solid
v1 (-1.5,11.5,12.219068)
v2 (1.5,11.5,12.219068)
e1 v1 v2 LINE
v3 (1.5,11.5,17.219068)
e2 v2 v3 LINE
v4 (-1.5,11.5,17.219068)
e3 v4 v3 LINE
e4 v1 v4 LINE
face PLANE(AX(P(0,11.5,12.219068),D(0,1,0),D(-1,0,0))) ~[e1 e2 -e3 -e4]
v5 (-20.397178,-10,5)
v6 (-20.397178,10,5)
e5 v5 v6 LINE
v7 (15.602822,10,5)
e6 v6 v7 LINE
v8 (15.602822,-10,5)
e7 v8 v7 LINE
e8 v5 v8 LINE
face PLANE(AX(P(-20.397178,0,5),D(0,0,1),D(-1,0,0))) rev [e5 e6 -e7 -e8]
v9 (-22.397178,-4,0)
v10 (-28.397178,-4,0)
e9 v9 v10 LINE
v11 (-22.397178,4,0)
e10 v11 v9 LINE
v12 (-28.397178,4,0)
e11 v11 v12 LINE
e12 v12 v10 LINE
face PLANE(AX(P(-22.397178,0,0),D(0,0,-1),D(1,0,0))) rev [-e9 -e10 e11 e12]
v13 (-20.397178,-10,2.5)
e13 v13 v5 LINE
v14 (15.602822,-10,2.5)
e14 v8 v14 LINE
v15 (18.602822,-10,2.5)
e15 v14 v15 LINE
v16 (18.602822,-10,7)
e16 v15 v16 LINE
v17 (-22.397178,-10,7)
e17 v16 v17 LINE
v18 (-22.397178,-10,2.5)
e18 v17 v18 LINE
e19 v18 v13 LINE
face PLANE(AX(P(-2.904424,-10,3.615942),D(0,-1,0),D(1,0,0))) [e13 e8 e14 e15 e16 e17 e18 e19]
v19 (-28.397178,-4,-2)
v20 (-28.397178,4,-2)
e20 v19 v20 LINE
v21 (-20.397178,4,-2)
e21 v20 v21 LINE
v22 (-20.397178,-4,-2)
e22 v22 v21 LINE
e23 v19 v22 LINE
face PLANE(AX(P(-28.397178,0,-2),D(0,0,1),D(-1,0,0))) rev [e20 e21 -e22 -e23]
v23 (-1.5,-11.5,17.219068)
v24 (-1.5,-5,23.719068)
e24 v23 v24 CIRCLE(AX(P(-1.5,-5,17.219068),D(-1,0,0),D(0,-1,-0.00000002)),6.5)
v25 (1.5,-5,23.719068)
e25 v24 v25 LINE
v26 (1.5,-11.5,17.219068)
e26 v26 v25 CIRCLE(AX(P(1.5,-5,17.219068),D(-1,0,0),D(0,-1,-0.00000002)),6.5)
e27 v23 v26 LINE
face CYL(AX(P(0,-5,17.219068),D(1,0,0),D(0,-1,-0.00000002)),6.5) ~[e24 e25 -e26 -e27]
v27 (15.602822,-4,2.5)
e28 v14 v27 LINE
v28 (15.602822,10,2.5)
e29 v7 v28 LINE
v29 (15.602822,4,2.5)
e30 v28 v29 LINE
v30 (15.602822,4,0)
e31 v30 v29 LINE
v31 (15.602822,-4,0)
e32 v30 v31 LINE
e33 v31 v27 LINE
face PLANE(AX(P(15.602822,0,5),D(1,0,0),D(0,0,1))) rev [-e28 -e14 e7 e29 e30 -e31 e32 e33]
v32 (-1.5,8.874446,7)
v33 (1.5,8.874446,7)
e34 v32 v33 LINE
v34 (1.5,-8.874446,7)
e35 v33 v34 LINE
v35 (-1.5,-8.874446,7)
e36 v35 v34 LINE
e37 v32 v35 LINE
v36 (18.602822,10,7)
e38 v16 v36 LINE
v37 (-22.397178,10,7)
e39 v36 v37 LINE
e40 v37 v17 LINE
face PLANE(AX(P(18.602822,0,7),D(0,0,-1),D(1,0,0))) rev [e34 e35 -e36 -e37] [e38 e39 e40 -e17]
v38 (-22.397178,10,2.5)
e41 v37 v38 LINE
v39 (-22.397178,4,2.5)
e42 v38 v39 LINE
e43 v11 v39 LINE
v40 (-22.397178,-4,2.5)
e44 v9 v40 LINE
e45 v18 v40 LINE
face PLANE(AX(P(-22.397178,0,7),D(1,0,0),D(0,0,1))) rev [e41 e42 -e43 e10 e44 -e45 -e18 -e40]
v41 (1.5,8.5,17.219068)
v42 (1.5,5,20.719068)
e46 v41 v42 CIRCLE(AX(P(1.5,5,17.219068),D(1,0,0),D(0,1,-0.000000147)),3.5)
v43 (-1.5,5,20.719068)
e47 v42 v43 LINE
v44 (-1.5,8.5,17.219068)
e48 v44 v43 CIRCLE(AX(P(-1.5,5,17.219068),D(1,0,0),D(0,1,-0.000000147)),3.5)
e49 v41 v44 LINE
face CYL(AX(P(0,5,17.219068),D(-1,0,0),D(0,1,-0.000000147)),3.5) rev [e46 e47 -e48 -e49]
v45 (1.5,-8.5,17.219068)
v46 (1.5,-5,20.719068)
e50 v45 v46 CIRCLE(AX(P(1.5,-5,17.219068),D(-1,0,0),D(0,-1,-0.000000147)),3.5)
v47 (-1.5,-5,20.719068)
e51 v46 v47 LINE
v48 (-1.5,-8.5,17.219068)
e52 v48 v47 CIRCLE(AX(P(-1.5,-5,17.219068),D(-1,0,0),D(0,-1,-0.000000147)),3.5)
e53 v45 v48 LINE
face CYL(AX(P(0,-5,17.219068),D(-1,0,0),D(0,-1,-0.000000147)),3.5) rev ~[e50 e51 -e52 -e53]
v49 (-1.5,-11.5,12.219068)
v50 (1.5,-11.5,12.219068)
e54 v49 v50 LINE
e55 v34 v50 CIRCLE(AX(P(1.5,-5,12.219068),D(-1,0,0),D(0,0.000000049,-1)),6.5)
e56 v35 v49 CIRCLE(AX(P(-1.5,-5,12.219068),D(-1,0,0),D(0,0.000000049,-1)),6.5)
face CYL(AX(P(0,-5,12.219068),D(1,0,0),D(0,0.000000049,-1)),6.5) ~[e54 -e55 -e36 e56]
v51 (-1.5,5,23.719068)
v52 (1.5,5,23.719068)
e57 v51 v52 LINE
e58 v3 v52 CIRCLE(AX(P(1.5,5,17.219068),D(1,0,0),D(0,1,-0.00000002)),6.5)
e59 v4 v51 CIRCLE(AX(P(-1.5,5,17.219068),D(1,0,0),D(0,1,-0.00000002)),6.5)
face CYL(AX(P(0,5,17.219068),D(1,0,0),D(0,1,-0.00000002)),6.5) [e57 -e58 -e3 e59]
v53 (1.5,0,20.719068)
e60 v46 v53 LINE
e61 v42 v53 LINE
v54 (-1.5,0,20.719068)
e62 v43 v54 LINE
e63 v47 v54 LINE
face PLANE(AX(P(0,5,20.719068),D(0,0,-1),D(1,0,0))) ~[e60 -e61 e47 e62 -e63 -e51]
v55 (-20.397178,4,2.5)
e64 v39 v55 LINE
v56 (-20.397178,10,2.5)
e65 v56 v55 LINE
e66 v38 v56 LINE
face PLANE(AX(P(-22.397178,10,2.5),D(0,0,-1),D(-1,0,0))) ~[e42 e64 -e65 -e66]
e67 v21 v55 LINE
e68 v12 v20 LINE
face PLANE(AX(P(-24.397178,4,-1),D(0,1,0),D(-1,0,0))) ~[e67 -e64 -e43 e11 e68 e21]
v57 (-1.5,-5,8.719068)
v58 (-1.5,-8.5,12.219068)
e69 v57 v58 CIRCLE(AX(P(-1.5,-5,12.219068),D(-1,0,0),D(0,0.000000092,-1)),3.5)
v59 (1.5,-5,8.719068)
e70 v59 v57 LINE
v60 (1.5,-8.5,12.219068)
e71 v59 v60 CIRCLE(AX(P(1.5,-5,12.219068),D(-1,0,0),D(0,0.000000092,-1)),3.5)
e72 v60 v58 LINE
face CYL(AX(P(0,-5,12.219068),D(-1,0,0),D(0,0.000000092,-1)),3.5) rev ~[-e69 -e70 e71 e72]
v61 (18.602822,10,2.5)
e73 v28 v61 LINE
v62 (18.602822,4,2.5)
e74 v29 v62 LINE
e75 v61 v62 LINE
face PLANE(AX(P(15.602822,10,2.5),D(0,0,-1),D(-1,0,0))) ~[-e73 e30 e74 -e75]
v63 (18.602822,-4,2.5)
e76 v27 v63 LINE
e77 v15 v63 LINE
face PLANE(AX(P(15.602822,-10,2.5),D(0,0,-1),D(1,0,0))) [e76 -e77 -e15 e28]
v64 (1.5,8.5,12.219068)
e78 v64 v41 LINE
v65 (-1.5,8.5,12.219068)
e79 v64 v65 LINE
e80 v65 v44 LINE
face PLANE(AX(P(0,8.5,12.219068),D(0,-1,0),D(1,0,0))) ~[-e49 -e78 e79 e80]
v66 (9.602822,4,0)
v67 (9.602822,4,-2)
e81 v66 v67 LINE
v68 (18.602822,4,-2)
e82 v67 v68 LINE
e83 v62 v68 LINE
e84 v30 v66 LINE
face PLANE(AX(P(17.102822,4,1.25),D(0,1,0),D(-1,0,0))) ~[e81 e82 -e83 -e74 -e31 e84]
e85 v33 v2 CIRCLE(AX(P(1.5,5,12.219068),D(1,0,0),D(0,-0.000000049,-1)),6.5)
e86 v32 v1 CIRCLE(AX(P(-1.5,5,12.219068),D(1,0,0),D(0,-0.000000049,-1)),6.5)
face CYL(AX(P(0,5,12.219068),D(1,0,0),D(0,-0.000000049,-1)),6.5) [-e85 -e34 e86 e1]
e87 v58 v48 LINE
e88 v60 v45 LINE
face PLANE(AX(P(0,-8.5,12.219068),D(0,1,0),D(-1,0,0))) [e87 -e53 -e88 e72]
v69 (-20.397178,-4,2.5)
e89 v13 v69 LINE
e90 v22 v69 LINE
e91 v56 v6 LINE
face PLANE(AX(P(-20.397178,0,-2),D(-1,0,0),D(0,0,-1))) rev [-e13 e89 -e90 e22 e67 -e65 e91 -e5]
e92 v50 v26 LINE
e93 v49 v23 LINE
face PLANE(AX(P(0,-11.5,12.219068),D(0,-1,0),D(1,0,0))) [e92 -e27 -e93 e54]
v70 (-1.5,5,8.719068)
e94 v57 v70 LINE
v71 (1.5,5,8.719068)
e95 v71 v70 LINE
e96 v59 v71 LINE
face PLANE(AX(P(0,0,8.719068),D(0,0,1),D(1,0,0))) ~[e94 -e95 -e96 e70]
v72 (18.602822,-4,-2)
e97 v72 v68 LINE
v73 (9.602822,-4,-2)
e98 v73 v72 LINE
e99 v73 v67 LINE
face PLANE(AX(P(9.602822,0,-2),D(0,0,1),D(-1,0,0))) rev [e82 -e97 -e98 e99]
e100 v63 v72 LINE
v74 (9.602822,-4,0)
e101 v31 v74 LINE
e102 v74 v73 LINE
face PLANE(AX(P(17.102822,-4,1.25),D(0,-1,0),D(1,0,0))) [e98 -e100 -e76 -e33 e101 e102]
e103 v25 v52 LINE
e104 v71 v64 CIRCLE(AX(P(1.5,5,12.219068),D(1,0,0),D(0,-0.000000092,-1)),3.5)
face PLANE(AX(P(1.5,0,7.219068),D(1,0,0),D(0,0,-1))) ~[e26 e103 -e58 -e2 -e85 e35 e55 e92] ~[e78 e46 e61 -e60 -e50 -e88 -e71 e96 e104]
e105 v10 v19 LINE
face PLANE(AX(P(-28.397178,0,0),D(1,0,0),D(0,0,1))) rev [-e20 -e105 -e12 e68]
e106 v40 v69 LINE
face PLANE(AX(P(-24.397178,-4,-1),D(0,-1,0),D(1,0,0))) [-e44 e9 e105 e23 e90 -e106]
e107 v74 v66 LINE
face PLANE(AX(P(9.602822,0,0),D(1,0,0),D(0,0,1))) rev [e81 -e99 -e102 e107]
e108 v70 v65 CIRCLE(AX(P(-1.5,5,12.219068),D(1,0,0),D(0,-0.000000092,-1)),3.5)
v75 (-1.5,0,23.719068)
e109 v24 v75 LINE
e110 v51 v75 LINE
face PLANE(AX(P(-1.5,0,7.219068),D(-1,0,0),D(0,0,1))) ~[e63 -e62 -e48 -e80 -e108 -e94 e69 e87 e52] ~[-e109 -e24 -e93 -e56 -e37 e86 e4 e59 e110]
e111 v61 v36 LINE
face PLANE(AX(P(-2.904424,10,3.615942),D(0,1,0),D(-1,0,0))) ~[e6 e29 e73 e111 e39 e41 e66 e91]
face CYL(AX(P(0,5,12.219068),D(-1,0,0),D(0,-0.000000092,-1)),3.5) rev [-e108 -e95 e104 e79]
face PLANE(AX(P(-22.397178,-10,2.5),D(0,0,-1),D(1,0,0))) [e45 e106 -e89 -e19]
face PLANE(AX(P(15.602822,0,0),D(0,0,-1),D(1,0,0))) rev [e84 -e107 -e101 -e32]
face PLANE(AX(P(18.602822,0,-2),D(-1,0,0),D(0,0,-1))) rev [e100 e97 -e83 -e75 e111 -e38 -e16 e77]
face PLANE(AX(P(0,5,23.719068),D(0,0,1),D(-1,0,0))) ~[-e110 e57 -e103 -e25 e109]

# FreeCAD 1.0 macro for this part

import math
import FreeCAD as App
import Part
import Sketcher

V = App.Vector


def add_polygon(sketch, points):
    """Adds a closed chain of lines whose ends are joined by coincident constraints."""
    first, n = sketch.GeometryCount, len(points)
    for a, b in zip(points, points[1:] + points[:1]):
        sketch.addGeometry(Part.LineSegment(App.Vector(*a, 0), App.Vector(*b, 0)), False)
    for i in range(n):
        sketch.addConstraint(Sketcher.Constraint("Coincident", first + i, 2, first + (i + 1) % n, 1))

doc = App.newDocument("Part")
params = doc.addObject("Spreadsheet::Sheet", "Params")
for row, (alias, value) in enumerate([
    ("sketch1_width", "6 mm"),
    ("sketch1_width2", "8 mm"),
    ("sketch1_width3", "36 mm"),
    ("sketch1_width4", "9 mm"),
    ("sketch1_height", "2 mm"),
    ("pad1_length", "10 mm"),
    ("sketch2_width", "8 mm"),
    ("sketch2_width2", "9 mm"),
    ("sketch2_height", "2 mm"),
    ("pocket1_length", "6 mm"),
    ("sketch3_width", "2 mm"),
    ("sketch3_width2", "3 mm"),
    ("sketch3_height", "2.5 mm"),
    ("pocket2_length", "6 mm"),
    ("sketch4_width", "3 mm"),
    ("sketch5_radius", "5 mm"),
    ("sketch5_width", "5 mm"),
], start=1):
    params.set(f"A{row}", alias)
    params.set(f"B{row}", "=" + value)
    params.setAlias(f"B{row}", alias)

body = doc.addObject("PartDesign::Body", "Body")

# Sketch on XZ plane
sketch1 = doc.addObject("Sketcher::SketchObject", "Sketch")
body.addObject(sketch1)
sketch1.AttachmentSupport = (doc.XZ_Plane, [""])
sketch1.MapMode = "FlatFace"
add_polygon(sketch1, [(-22.4, 0), (-28.4, 0), (-28.4, -2), (-20.4, -2), (-20.4, 5), (15.6, 5), (15.6, 0), (9.6, 0), (9.6, -2), (18.6, -2), (18.6, 7), (-22.4, 7)])  # lines 0-11
sketch1.addConstraint([
    Sketcher.Constraint("Horizontal", 0),
    Sketcher.Constraint("Vertical", 1),
    Sketcher.Constraint("Horizontal", 2),
    Sketcher.Constraint("Vertical", 3),
    Sketcher.Constraint("Horizontal", 4),
    Sketcher.Constraint("Vertical", 5),
    Sketcher.Constraint("Horizontal", 6),
    Sketcher.Constraint("Vertical", 7),
    Sketcher.Constraint("Horizontal", 8),
    Sketcher.Constraint("Vertical", 9),
    Sketcher.Constraint("Horizontal", 10),
    Sketcher.Constraint("Vertical", 11),
    Sketcher.Constraint("PointOnObject", 0, 2, -1),
    Sketcher.Constraint("PointOnObject", 5, 2, -1),
    Sketcher.Constraint("Horizontal", 2, 2, 7, 2),
    Sketcher.Constraint("Equal", 0, 6),
    Sketcher.Constraint("Equal", 8, 9),
    Sketcher.Constraint("Equal", 3, 11),
    Sketcher.Constraint("DistanceX", 0, 2, 0, 1, 6.0),
    Sketcher.Constraint("DistanceX", 2, 1, 2, 2, 8.0),
    Sketcher.Constraint("DistanceX", 4, 1, 4, 2, 36.0),
    Sketcher.Constraint("DistanceX", 8, 1, 8, 2, 9.0),
    Sketcher.Constraint("DistanceY", 1, 2, 1, 1, 2.0),
    Sketcher.Constraint("DistanceX", 0, 2, -1, 1, 28.397178),
])
sketch1.setExpression("Constraints[30]", "Params.sketch1_width")
sketch1.setExpression("Constraints[31]", "Params.sketch1_width2")
sketch1.setExpression("Constraints[32]", "Params.sketch1_width3")
sketch1.setExpression("Constraints[33]", "Params.sketch1_width4")
sketch1.setExpression("Constraints[34]", "Params.sketch1_height")
pad1 = doc.addObject("PartDesign::Pad", "Pad")
body.addObject(pad1)
pad1.Profile = sketch1
pad1.setExpression("Length", "Params.pad1_length")

# Sketch on XZ plane
sketch2 = doc.addObject("Sketcher::SketchObject", "Sketch001")
body.addObject(sketch2)
sketch2.AttachmentSupport = (doc.XZ_Plane, [""])
sketch2.MapMode = "FlatFace"
sketch2.AttachmentOffset = App.Placement(V(0, 0, 10), App.Rotation())
add_polygon(sketch2, [(-20.4, 0), (-28.4, 0), (-28.4, -2), (-20.4, -2)])  # lines 0-3
add_polygon(sketch2, [(18.6, -2), (18.6, 0), (9.6, 0), (9.6, -2)])  # lines 4-7
sketch2.addConstraint([
    Sketcher.Constraint("Horizontal", 0),
    Sketcher.Constraint("Vertical", 1),
    Sketcher.Constraint("Horizontal", 2),
    Sketcher.Constraint("Vertical", 3),
    Sketcher.Constraint("Vertical", 4),
    Sketcher.Constraint("Horizontal", 5),
    Sketcher.Constraint("Vertical", 6),
    Sketcher.Constraint("Horizontal", 7),
    Sketcher.Constraint("PointOnObject", 0, 2, -1),
    Sketcher.Constraint("PointOnObject", 4, 2, -1),
    Sketcher.Constraint("Horizontal", 2, 2, 6, 2),
    Sketcher.Constraint("DistanceX", 0, 2, 0, 1, 8.0),
    Sketcher.Constraint("DistanceX", 5, 2, 5, 1, 9.0),
    Sketcher.Constraint("DistanceY", 1, 2, 1, 1, 2.0),
    Sketcher.Constraint("DistanceX", 3, 2, 4, 2, 39.0),
    Sketcher.Constraint("DistanceX", 0, 2, -1, 1, 28.397178),
])
sketch2.setExpression("Constraints[19]", "Params.sketch2_width")
sketch2.setExpression("Constraints[20]", "Params.sketch2_width2")
sketch2.setExpression("Constraints[21]", "Params.sketch2_height")
pocket1 = doc.addObject("PartDesign::Pocket", "Pocket")
body.addObject(pocket1)
pocket1.Profile = sketch2
pocket1.setExpression("Length", "Params.pocket1_length")

# Sketch on XZ plane
sketch3 = doc.addObject("Sketcher::SketchObject", "Sketch002")
body.addObject(sketch3)
sketch3.AttachmentSupport = (doc.XZ_Plane, [""])
sketch3.MapMode = "FlatFace"
sketch3.AttachmentOffset = App.Placement(V(0, 0, 10), App.Rotation())
add_polygon(sketch3, [(-22.4, 2.5), (-22.4, 0), (-20.4, 0), (-20.4, 2.5)])  # lines 0-3
add_polygon(sketch3, [(15.6, 2.5), (15.6, 0), (18.6, 0), (18.6, 2.5)])  # lines 4-7
sketch3.addConstraint([
    Sketcher.Constraint("Vertical", 0),
    Sketcher.Constraint("Horizontal", 1),
    Sketcher.Constraint("Vertical", 2),
    Sketcher.Constraint("Horizontal", 3),
    Sketcher.Constraint("Vertical", 4),
    Sketcher.Constraint("Horizontal", 5),
    Sketcher.Constraint("Vertical", 6),
    Sketcher.Constraint("Horizontal", 7),
    Sketcher.Constraint("PointOnObject", 0, 2, -1),
    Sketcher.Constraint("PointOnObject", 4, 2, -1),
    Sketcher.Constraint("Horizontal", 3, 2, 6, 2),
    Sketcher.Constraint("DistanceX", 1, 1, 1, 2, 2.0),
    Sketcher.Constraint("DistanceX", 5, 1, 5, 2, 3.0),
    Sketcher.Constraint("DistanceY", 0, 2, 0, 1, 2.5),
    Sketcher.Constraint("DistanceX", 1, 2, 4, 2, 36.0),
    Sketcher.Constraint("DistanceX", 0, 2, -1, 1, 22.397178),
])
sketch3.setExpression("Constraints[19]", "Params.sketch3_width")
sketch3.setExpression("Constraints[20]", "Params.sketch3_width2")
sketch3.setExpression("Constraints[21]", "Params.sketch3_height")
pocket2 = doc.addObject("PartDesign::Pocket", "Pocket001")
body.addObject(pocket2)
pocket2.Profile = sketch3
pocket2.setExpression("Length", "Params.pocket2_length")

# Sketch on XZ plane
sketch4 = doc.addObject("Sketcher::SketchObject", "Sketch003")
body.addObject(sketch4)
sketch4.AttachmentSupport = (doc.XZ_Plane, [""])
sketch4.MapMode = "FlatFace"
add_polygon(sketch4, [(-1.5, 8.7), (-1.5, 5.7), (1.5, 5.7), (1.5, 8.7)])  # lines 0-3
sketch4.addConstraint([
    Sketcher.Constraint("Vertical", 0),
    Sketcher.Constraint("Horizontal", 1),
    Sketcher.Constraint("Vertical", 2),
    Sketcher.Constraint("Horizontal", 3),
    Sketcher.Constraint("Equal", 3, 0),
    Sketcher.Constraint("DistanceX", 1, 1, 1, 2, 3.0),
    Sketcher.Constraint("DistanceX", 0, 2, -1, 1, 1.5),
    Sketcher.Constraint("DistanceY", -1, 1, 0, 2, 5.719068),
])
sketch4.setExpression("Constraints[9]", "Params.sketch4_width")

# Sketch on YZ plane
sketch5 = doc.addObject("Sketcher::SketchObject", "Sketch004")
body.addObject(sketch5)
sketch5.AttachmentSupport = (doc.YZ_Plane, [""])
sketch5.MapMode = "FlatFace"
sketch5.addGeometry([
    Part.LineSegment(V(0, 7.2, 0), V(-5, 7.2, 0)),  # 0
    Part.ArcOfCircle(Part.Circle(V(-5, 12.2, 0), V(0, 0, 1), 5), math.radians(180), math.radians(270)),  # 1
    Part.LineSegment(V(-10, 12.2, 0), V(-10, 17.2, 0)),  # 2
    Part.ArcOfCircle(Part.Circle(V(-5, 17.2, 0), V(0, 0, 1), 5), math.radians(90), math.radians(180)),  # 3
    Part.LineSegment(V(-5, 22.2, 0), V(0, 22.2, 0)),  # 4
], False)
sketch5.addConstraint([
    Sketcher.Constraint("Tangent", 0, 2, 1, 2),
    Sketcher.Constraint("Tangent", 1, 1, 2, 1),
    Sketcher.Constraint("Tangent", 2, 2, 3, 2),
    Sketcher.Constraint("Tangent", 3, 1, 4, 1),
    Sketcher.Constraint("Horizontal", 0),
    Sketcher.Constraint("Vertical", 2),
    Sketcher.Constraint("Horizontal", 4),
    Sketcher.Constraint("Equal", 1, 3),
    Sketcher.Constraint("PointOnObject", 0, 1, -2),
    Sketcher.Constraint("PointOnObject", 4, 2, -2),
    Sketcher.Constraint("Equal", 4, 2),
    Sketcher.Constraint("Radius", 1, 5.0),
    Sketcher.Constraint("DistanceX", 0, 2, 0, 1, 5.0),
    Sketcher.Constraint("DistanceY", -1, 1, 3, 3, 17.219068),
])
sketch5.setExpression("Constraints[11]", "Params.sketch5_radius")
sketch5.setExpression("Constraints[12]", "Params.sketch5_width")
doc.recompute()

additivepipe = doc.addObject("PartDesign::AdditivePipe", "AdditivePipe")
body.addObject(additivepipe)
additivepipe.Profile = sketch4
additivepipe.Spine = (sketch5, ["Edge1", "Edge2", "Edge3", "Edge4", "Edge5"])
body2 = doc.addObject("PartDesign::Body", "Body001")
doc.recompute()

body2.BaseFeature = body
doc.recompute()

mirroring = doc.addObject("Part::Mirroring", "Mirroring")
mirroring.Source = body
mirroring.Base = V(0, 0, 0)
mirroring.Normal = V(0, -1, 0)
body3 = doc.addObject("PartDesign::Body", "Body002")
body3.BaseFeature = mirroring
boolean = doc.addObject("PartDesign::Boolean", "Boolean")
body2.addObject(boolean)
boolean.Type = "Fuse"
boolean.addObjects([body3])
doc.recompute()
mirroring.Visibility = False

doc.recompute()
